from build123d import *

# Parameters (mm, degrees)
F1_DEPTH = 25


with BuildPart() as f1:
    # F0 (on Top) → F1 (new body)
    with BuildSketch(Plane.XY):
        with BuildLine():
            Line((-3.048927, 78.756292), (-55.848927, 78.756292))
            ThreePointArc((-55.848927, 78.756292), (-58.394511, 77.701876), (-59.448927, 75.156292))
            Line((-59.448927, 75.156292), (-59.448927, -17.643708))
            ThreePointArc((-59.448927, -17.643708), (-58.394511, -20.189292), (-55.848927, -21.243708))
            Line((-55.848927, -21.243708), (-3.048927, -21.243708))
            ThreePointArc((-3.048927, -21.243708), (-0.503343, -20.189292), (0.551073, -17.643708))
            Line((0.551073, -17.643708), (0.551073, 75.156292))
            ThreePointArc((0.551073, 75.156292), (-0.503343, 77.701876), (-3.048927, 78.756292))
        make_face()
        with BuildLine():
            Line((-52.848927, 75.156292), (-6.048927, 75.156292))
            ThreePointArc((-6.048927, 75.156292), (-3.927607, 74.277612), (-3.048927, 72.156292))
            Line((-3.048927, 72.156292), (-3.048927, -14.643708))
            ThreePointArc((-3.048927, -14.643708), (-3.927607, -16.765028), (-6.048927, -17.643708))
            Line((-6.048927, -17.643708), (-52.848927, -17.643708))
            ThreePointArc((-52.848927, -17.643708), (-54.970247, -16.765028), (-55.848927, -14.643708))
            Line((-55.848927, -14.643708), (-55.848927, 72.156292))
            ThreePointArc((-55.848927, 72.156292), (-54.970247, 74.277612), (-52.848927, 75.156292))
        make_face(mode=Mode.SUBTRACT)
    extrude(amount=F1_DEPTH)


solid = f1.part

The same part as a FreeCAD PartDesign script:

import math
import FreeCAD as App
import Part
import Sketcher
from FreeCAD import Vector
Q = App.Units.Quantity

doc = App.newDocument("Part")
body = doc.addObject("PartDesign::Body", "Body")

sketch1 = body.newObject("Sketcher::SketchObject", "Sketch")
sketch1.AttachmentSupport = (doc.getObject("XY_Plane"), [""])
sketch1.MapMode = "FlatFace"
sketch1.addGeometry([
    Part.LineSegment(Vector(-3, 78.8, 0), Vector(-55.8, 78.8, 0)),
    Part.ArcOfCircle(Part.Circle(Vector(-55.8, 75.2, 0), Vector(0, 0, 1), 3.6), math.radians(90), math.radians(180)),
    Part.LineSegment(Vector(-59.4, 75.2, 0), Vector(-59.4, -17.6, 0)),
    Part.ArcOfCircle(Part.Circle(Vector(-55.8, -17.6, 0), Vector(0, 0, 1), 3.6), math.radians(-180), math.radians(-90)),
    Part.LineSegment(Vector(-55.8, -21.2, 0), Vector(-3, -21.2, 0)),
    Part.ArcOfCircle(Part.Circle(Vector(-3, -17.6, 0), Vector(0, 0, 1), 3.6), math.radians(-90), math.radians(0)),
    Part.LineSegment(Vector(0.6, -17.6, 0), Vector(0.6, 75.2, 0)),
    Part.ArcOfCircle(Part.Circle(Vector(-3, 75.2, 0), Vector(0, 0, 1), 3.6), math.radians(0), math.radians(90)),
    Part.ArcOfCircle(Part.Circle(Vector(-52.8, 72.2, 0), Vector(0, 0, 1), 3), math.radians(90), math.radians(180)),
    Part.LineSegment(Vector(-52.8, 75.2, 0), Vector(-6, 75.2, 0)),
    Part.ArcOfCircle(Part.Circle(Vector(-6, 72.2, 0), Vector(0, 0, 1), 3), math.radians(0), math.radians(90)),
    Part.LineSegment(Vector(-3, 72.2, 0), Vector(-3, -14.6, 0)),
    Part.ArcOfCircle(Part.Circle(Vector(-6, -14.6, 0), Vector(0, 0, 1), 3), math.radians(-90), math.radians(0)),
    Part.LineSegment(Vector(-6, -17.6, 0), Vector(-52.8, -17.6, 0)),
    Part.ArcOfCircle(Part.Circle(Vector(-52.8, -14.6, 0), Vector(0, 0, 1), 3), math.radians(-180), math.radians(-90)),
    Part.LineSegment(Vector(-55.8, -14.6, 0), Vector(-55.8, 72.2, 0)),
], False)
sketch1.addConstraint([
    Sketcher.Constraint("Tangent", 0, 2, 1, 1),
    Sketcher.Constraint("Tangent", 1, 2, 2, 1),
    Sketcher.Constraint("Tangent", 2, 2, 3, 1),
    Sketcher.Constraint("Tangent", 3, 2, 4, 1),
    Sketcher.Constraint("Tangent", 4, 2, 5, 1),
    Sketcher.Constraint("Tangent", 5, 2, 6, 1),
    Sketcher.Constraint("Tangent", 6, 2, 7, 1),
    Sketcher.Constraint("Tangent", 7, 2, 0, 1),
    Sketcher.Constraint("Tangent", 8, 1, 9, 1),
    Sketcher.Constraint("Tangent", 9, 2, 10, 2),
    Sketcher.Constraint("Tangent", 10, 1, 11, 1),
    Sketcher.Constraint("Tangent", 11, 2, 12, 2),
    Sketcher.Constraint("Tangent", 12, 1, 13, 1),
    Sketcher.Constraint("Tangent", 13, 2, 14, 2),
    Sketcher.Constraint("Tangent", 14, 1, 15, 1),
    Sketcher.Constraint("Tangent", 15, 2, 8, 2),
    Sketcher.Constraint("Horizontal", 0),
    Sketcher.Constraint("Vertical", 2),
    Sketcher.Constraint("Horizontal", 4),
    Sketcher.Constraint("Vertical", 6),
    Sketcher.Constraint("Horizontal", 9),
    Sketcher.Constraint("Vertical", 11),
    Sketcher.Constraint("Horizontal", 13),
    Sketcher.Constraint("Vertical", 15),
    Sketcher.Constraint("Equal", 1, 3),
    Sketcher.Constraint("Equal", 3, 5),
    Sketcher.Constraint("Equal", 5, 7),
    Sketcher.Constraint("Equal", 8, 10),
    Sketcher.Constraint("Equal", 10, 12),
    Sketcher.Constraint("Equal", 12, 14),
    Sketcher.Constraint("Horizontal", 6, 2, 8, 1),
    Sketcher.Constraint("Horizontal", 5, 2, 12, 1),
    Sketcher.Constraint("Vertical", 7, 2, 10, 1),
    Sketcher.Constraint("Vertical", 3, 2, 14, 1),
    Sketcher.Constraint("Radius", 8, Q("3.000001 mm")),
    Sketcher.Constraint("Radius", 1, Q("3.600001 mm")),
    Sketcher.Constraint("DistanceX", 0, 2, 0, 1, Q("52.8 mm")),
    Sketcher.Constraint("DistanceY", 2, 2, 2, 1, Q("92.8 mm")),
    Sketcher.Constraint("DistanceY", -1, 1, 1, 3, Q("75.156291 mm")),
    Sketcher.Constraint("DistanceX", 5, 3, -1, 1, Q("3.048928 mm")),
])
pad1 = body.newObject("PartDesign::Pad", "Pad")
pad1.Profile = sketch1
pad1.Length = 25

doc.recompute()
